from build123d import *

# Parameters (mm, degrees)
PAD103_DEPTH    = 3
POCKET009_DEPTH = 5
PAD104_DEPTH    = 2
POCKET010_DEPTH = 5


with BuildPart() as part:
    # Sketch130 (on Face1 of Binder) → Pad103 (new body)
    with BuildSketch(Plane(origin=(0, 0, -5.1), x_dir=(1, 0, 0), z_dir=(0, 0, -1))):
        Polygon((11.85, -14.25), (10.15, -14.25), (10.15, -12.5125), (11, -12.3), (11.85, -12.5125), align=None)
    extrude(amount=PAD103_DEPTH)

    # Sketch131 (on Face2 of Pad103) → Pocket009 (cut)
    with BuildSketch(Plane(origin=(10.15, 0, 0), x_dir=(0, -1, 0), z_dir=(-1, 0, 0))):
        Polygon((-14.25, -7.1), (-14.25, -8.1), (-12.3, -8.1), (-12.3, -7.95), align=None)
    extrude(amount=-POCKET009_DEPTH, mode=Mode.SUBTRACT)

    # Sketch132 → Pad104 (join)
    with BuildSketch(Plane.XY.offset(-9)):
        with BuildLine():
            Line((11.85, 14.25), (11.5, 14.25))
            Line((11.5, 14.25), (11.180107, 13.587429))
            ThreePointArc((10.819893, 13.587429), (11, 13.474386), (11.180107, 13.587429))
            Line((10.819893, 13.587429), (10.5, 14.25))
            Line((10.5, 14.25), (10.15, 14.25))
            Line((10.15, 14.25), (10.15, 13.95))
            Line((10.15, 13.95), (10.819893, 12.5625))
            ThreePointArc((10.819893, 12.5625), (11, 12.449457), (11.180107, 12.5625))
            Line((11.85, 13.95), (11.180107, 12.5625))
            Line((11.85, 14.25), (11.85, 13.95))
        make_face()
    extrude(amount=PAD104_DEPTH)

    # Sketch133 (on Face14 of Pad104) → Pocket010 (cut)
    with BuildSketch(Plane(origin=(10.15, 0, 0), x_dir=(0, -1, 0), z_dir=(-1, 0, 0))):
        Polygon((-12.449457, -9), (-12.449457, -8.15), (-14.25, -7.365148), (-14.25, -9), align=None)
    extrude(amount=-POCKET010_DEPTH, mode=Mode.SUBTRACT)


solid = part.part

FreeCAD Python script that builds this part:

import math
import FreeCAD as App
import Part
import Sketcher
from FreeCAD import Vector

doc = App.newDocument("Part")
params = doc.addObject("Spreadsheet::Sheet", "Params")
for row, (alias, value) in enumerate([
    ("sketch1_width", "1.7 mm"),
    ("pad1_length", "3 mm"),
    ("sketch2_height", "1 mm"),
    ("sketch2_width", "1.95 mm"),
    ("sketch2_height2", "0.15 mm"),
    ("pocket1_length", "5 mm"),
    ("sketch3_radius", "0.2 mm"),
    ("sketch3_height", "0.3 mm"),
    ("sketch3_width", "0.35 mm"),
    ("pad2_length", "2 mm"),
    ("sketch4_height", "0.85 mm"),
    ("pocket2_length", "5 mm"),
], start=1):
    params.set(f"A{row}", alias)
    params.set(f"B{row}", "=" + value)
    params.setAlias(f"B{row}", alias)

body = doc.addObject("PartDesign::Body", "Body")

sketch1 = body.newObject("Sketcher::SketchObject", "Sketch")
sketch1.AttachmentSupport = (doc.getObject("XY_Plane"), [""])
sketch1.MapMode = "FlatFace"
sketch1.AttachmentOffset = App.Placement(Vector(0, 0, -5.1), App.Rotation())
sketch1.addGeometry([
    Part.LineSegment(Vector(10.2, 14.2, 0), Vector(11.8, 14.2, 0)),
    Part.LineSegment(Vector(11.8, 14.2, 0), Vector(11.8, 12.5, 0)),
    Part.LineSegment(Vector(11.8, 12.5, 0), Vector(11, 12.3, 0)),
    Part.LineSegment(Vector(11, 12.3, 0), Vector(10.2, 12.5, 0)),
    Part.LineSegment(Vector(10.2, 12.5, 0), Vector(10.2, 14.2, 0)),
], False)
sketch1.addConstraint([
    Sketcher.Constraint("Coincident", 0, 2, 1, 1),
    Sketcher.Constraint("Coincident", 1, 2, 2, 1),
    Sketcher.Constraint("Coincident", 2, 2, 3, 1),
    Sketcher.Constraint("Coincident", 3, 2, 4, 1),
    Sketcher.Constraint("Coincident", 4, 2, 0, 1),
    Sketcher.Constraint("Horizontal", 0),
    Sketcher.Constraint("Vertical", 1),
    Sketcher.Constraint("Vertical", 4),
    Sketcher.Constraint("Horizontal", 1, 2, 3, 2),
    Sketcher.Constraint("Equal", 2, 3),
    Sketcher.Constraint("DistanceX", 0, 1, 0, 2, 1.7),
    Sketcher.Constraint("DistanceX", -1, 1, 2, 2, 11.0),
    Sketcher.Constraint("DistanceY", -1, 1, 2, 2, 12.3),
    Sketcher.Constraint("DistanceY", -1, 1, 0, 2, 14.25),
    Sketcher.Constraint("DistanceY", 1, 2, 1, 1, 1.7375),
])
sketch1.setExpression("Constraints[10]", "Params.sketch1_width")
pad1 = body.newObject("PartDesign::Pad", "Pad")
pad1.Profile = sketch1
pad1.setExpression("Length", "Params.pad1_length")
pad1.Reversed = True

sketch2 = body.newObject("Sketcher::SketchObject", "Sketch001")
sketch2.AttachmentSupport = (doc.getObject("YZ_Plane"), [""])
sketch2.MapMode = "FlatFace"
sketch2.AttachmentOffset = App.Placement(Vector(0, 0, 10.15), App.Rotation())
sketch2.addGeometry([
    Part.LineSegment(Vector(14.25, -7.1, 0), Vector(14.25, -8.1, 0)),
    Part.LineSegment(Vector(14.25, -8.1, 0), Vector(12.3, -8.1, 0)),
    Part.LineSegment(Vector(12.3, -8.1, 0), Vector(12.3, -7.95, 0)),
    Part.LineSegment(Vector(12.3, -7.95, 0), Vector(14.25, -7.1, 0)),
], False)
sketch2.addConstraint([
    Sketcher.Constraint("Coincident", 0, 2, 1, 1),
    Sketcher.Constraint("Coincident", 1, 2, 2, 1),
    Sketcher.Constraint("Coincident", 2, 2, 3, 1),
    Sketcher.Constraint("Coincident", 3, 2, 0, 1),
    Sketcher.Constraint("Vertical", 0),
    Sketcher.Constraint("Horizontal", 1),
    Sketcher.Constraint("Vertical", 2),
    Sketcher.Constraint("DistanceY", 0, 2, 0, 1, 1.0),
    Sketcher.Constraint("DistanceX", 1, 2, 1, 1, 1.95),
    Sketcher.Constraint("DistanceY", 2, 1, 2, 2, 0.15),
    Sketcher.Constraint("DistanceY", 0, 2, -1, 1, 8.1),
    Sketcher.Constraint("DistanceX", -1, 1, 1, 2, 12.3),
])
sketch2.setExpression("Constraints[7]", "Params.sketch2_height")
sketch2.setExpression("Constraints[8]", "Params.sketch2_width")
sketch2.setExpression("Constraints[9]", "Params.sketch2_height2")
pocket1 = body.newObject("PartDesign::Pocket", "Pocket")
pocket1.Profile = sketch2
pocket1.setExpression("Length", "Params.pocket1_length")
pocket1.Reversed = True

sketch3 = body.newObject("Sketcher::SketchObject", "Sketch002")
sketch3.AttachmentSupport = (doc.getObject("XY_Plane"), [""])
sketch3.MapMode = "FlatFace"
sketch3.AttachmentOffset = App.Placement(Vector(0, 0, -9), App.Rotation())
sketch3.addGeometry([
    Part.LineSegment(Vector(11.85, 14.25, 0), Vector(11.5, 14.25, 0)),
    Part.LineSegment(Vector(11.5, 14.25, 0), Vector(11.18, 13.59, 0)),
    Part.ArcOfCircle(Part.Circle(Vector(11, 13.67, 0), Vector(0, 0, 1), 0.2), math.radians(-154), math.radians(-26)),
    Part.LineSegment(Vector(10.82, 13.59, 0), Vector(10.5, 14.25, 0)),
    Part.LineSegment(Vector(10.5, 14.25, 0), Vector(10.15, 14.25, 0)),
    Part.LineSegment(Vector(10.15, 14.25, 0), Vector(10.15, 13.95, 0)),
    Part.LineSegment(Vector(10.15, 13.95, 0), Vector(10.82, 12.56, 0)),
    Part.ArcOfCircle(Part.Circle(Vector(11, 12.65, 0), Vector(0, 0, 1), 0.2), math.radians(-154), math.radians(-26)),
    Part.LineSegment(Vector(11.18, 12.56, 0), Vector(11.85, 13.95, 0)),
    Part.LineSegment(Vector(11.85, 13.95, 0), Vector(11.85, 14.25, 0)),
], False)
sketch3.addConstraint([
    Sketcher.Constraint("Coincident", 0, 2, 1, 1),
    Sketcher.Constraint("Coincident", 1, 2, 2, 2),
    Sketcher.Constraint("Coincident", 2, 1, 3, 1),
    Sketcher.Constraint("Coincident", 3, 2, 4, 1),
    Sketcher.Constraint("Coincident", 4, 2, 5, 1),
    Sketcher.Constraint("Coincident", 5, 2, 6, 1),
    Sketcher.Constraint("Coincident", 6, 2, 7, 1),
    Sketcher.Constraint("Coincident", 7, 2, 8, 1),
    Sketcher.Constraint("Coincident", 8, 2, 9, 1),
    Sketcher.Constraint("Coincident", 9, 2, 0, 1),
    Sketcher.Constraint("Horizontal", 0),
    Sketcher.Constraint("Horizontal", 4),
    Sketcher.Constraint("Vertical", 5),
    Sketcher.Constraint("Vertical", 9),
    Sketcher.Constraint("Equal", 2, 7),
    Sketcher.Constraint("Parallel", 3, 6),
    Sketcher.Constraint("Parallel", 1, 8),
    Sketcher.Constraint("Horizontal", 1, 2, 2, 1),
    Sketcher.Constraint("Horizontal", 0, 2, 3, 2),
    Sketcher.Constraint("Horizontal", 6, 2, 7, 2),
    Sketcher.Constraint("Horizontal", 5, 2, 8, 2),
    Sketcher.Constraint("Vertical", 2, 3, 7, 3),
    Sketcher.Constraint("Vertical", 2, 1, 6, 2),
    Sketcher.Constraint("Equal", 0, 4),
    Sketcher.Constraint("Radius", 2, 0.2),
    Sketcher.Constraint("DistanceY", 5, 2, 5, 1, 0.3),
    Sketcher.Constraint("DistanceX", -1, 1, 2, 3, 11.0),
    Sketcher.Constraint("DistanceX", 3, 2, 0, 2, 1.0),
    Sketcher.Constraint("DistanceX", 0, 2, 0, 1, 0.35),
    Sketcher.Constraint("DistanceY", -1, 1, 0, 2, 14.25),
    Sketcher.Constraint("DistanceY", -1, 1, 6, 2, 12.5625),
    Sketcher.Constraint("Distance", 6, 1.540751),
])
sketch3.setExpression("Constraints[24]", "Params.sketch3_radius")
sketch3.setExpression("Constraints[25]", "Params.sketch3_height")
sketch3.setExpression("Constraints[28]", "Params.sketch3_width")
pad2 = body.newObject("PartDesign::Pad", "Pad001")
pad2.Profile = sketch3
pad2.setExpression("Length", "Params.pad2_length")

sketch4 = body.newObject("Sketcher::SketchObject", "Sketch003")
sketch4.AttachmentSupport = (doc.getObject("YZ_Plane"), [""])
sketch4.MapMode = "FlatFace"
sketch4.AttachmentOffset = App.Placement(Vector(0, 0, 10.15), App.Rotation())
sketch4.addGeometry([
    Part.LineSegment(Vector(12.4, -9, 0), Vector(12.4, -8.2, 0)),
    Part.LineSegment(Vector(12.4, -8.2, 0), Vector(14.2, -7.4, 0)),
    Part.LineSegment(Vector(14.2, -7.4, 0), Vector(14.2, -9, 0)),
    Part.LineSegment(Vector(14.2, -9, 0), Vector(12.4, -9, 0)),
], False)
sketch4.addConstraint([
    Sketcher.Constraint("Coincident", 0, 2, 1, 1),
    Sketcher.Constraint("Coincident", 1, 2, 2, 1),
    Sketcher.Constraint("Coincident", 2, 2, 3, 1),
    Sketcher.Constraint("Coincident", 3, 2, 0, 1),
    Sketcher.Constraint("Vertical", 0),
    Sketcher.Constraint("Vertical", 2),
    Sketcher.Constraint("Horizontal", 3),
    Sketcher.Constraint("DistanceY", 2, 2, -1, 1, 9.0),
    Sketcher.Constraint("DistanceY", 0, 1, 0, 2, 0.85),
    Sketcher.Constraint("DistanceX", -1, 1, 1, 2, 14.25),
    Sketcher.Constraint("DistanceX", 3, 2, 3, 1, 1.800543),
    Sketcher.Constraint("DistanceY", 2, 2, 2, 1, 1.634852),
])
sketch4.setExpression("Constraints[8]", "Params.sketch4_height")
pocket2 = body.newObject("PartDesign::Pocket", "Pocket001")
pocket2.Profile = sketch4
pocket2.setExpression("Length", "Params.pocket2_length")
pocket2.Reversed = True

doc.recompute()
